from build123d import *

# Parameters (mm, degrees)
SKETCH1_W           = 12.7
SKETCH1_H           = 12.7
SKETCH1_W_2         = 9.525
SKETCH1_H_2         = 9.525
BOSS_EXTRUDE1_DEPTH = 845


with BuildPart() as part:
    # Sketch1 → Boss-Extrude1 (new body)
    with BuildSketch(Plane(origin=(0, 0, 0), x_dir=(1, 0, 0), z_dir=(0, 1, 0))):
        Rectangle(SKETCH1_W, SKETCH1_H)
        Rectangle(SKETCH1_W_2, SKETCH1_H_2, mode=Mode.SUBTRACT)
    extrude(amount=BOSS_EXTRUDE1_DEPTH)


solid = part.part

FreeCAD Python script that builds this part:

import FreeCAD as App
import Part
import Sketcher
Q = App.Units.Quantity

doc = App.newDocument("Part")
params = doc.addObject("Spreadsheet::Sheet", "Params")
for row, (alias, value) in enumerate([
    ("sketch1_width", "0.5 in"),
    ("sketch1_width2", "0.375 in"),
    ("pad1_length", "845 mm"),
], start=1):
    params.set(f"A{row}", alias)
    params.set(f"B{row}", "=" + value)
    params.setAlias(f"B{row}", alias)

body = doc.addObject("PartDesign::Body", "Body")

# Sketch on XZ plane
sketch1 = body.newObject("Sketcher::SketchObject", "Sketch")
sketch1.AttachmentSupport = (doc.getObject("XZ_Plane"), [""])
sketch1.MapMode = "FlatFace"
sketch1.addGeometry(Part.LineSegment(App.Vector(-6, -6, 0), App.Vector(-6, 6, 0)), False)
sketch1.addGeometry(Part.LineSegment(App.Vector(-6, 6, 0), App.Vector(6, 6, 0)), False)
sketch1.addGeometry(Part.LineSegment(App.Vector(6, 6, 0), App.Vector(6, -6, 0)), False)
sketch1.addGeometry(Part.LineSegment(App.Vector(6, -6, 0), App.Vector(-6, -6, 0)), False)
sketch1.addGeometry(Part.LineSegment(App.Vector(5, 5, 0), App.Vector(-5, 5, 0)), False)
sketch1.addGeometry(Part.LineSegment(App.Vector(-5, 5, 0), App.Vector(-5, -5, 0)), False)
sketch1.addGeometry(Part.LineSegment(App.Vector(-5, -5, 0), App.Vector(5, -5, 0)), False)
sketch1.addGeometry(Part.LineSegment(App.Vector(5, -5, 0), App.Vector(5, 5, 0)), False)
sketch1.addConstraint(Sketcher.Constraint("Coincident", 0, 2, 1, 1))
sketch1.addConstraint(Sketcher.Constraint("Coincident", 1, 2, 2, 1))
sketch1.addConstraint(Sketcher.Constraint("Coincident", 2, 2, 3, 1))
sketch1.addConstraint(Sketcher.Constraint("Coincident", 3, 2, 0, 1))
sketch1.addConstraint(Sketcher.Constraint("Coincident", 4, 2, 5, 1))
sketch1.addConstraint(Sketcher.Constraint("Coincident", 5, 2, 6, 1))
sketch1.addConstraint(Sketcher.Constraint("Coincident", 6, 2, 7, 1))
sketch1.addConstraint(Sketcher.Constraint("Coincident", 7, 2, 4, 1))
sketch1.addConstraint(Sketcher.Constraint("Vertical", 0))
sketch1.addConstraint(Sketcher.Constraint("Horizontal", 1))
sketch1.addConstraint(Sketcher.Constraint("Vertical", 2))
sketch1.addConstraint(Sketcher.Constraint("Horizontal", 3))
sketch1.addConstraint(Sketcher.Constraint("Horizontal", 4))
sketch1.addConstraint(Sketcher.Constraint("Vertical", 5))
sketch1.addConstraint(Sketcher.Constraint("Horizontal", 6))
sketch1.addConstraint(Sketcher.Constraint("Vertical", 7))
sketch1.addConstraint(Sketcher.Constraint("Symmetric", 0, 2, 2, 2, -1, 1))
sketch1.addConstraint(Sketcher.Constraint("Symmetric", 4, 2, 6, 2, -1, 1))
sketch1.addConstraint(Sketcher.Constraint("Equal", 3, 0))
sketch1.addConstraint(Sketcher.Constraint("Equal", 6, 5))
sketch1.addConstraint(Sketcher.Constraint("DistanceX", 1, 1, 1, 2, Q("0.5 in")))
sketch1.addConstraint(Sketcher.Constraint("DistanceX", 4, 2, 4, 1, Q("0.375 in")))
sketch1.setExpression("Constraints[20]", "Params.sketch1_width")
sketch1.setExpression("Constraints[21]", "Params.sketch1_width2")
pad1 = body.newObject("PartDesign::Pad", "Pad")
pad1.Profile = sketch1
pad1.setExpression("Length", "Params.pad1_length")
pad1.Reversed = True

doc.recompute()
